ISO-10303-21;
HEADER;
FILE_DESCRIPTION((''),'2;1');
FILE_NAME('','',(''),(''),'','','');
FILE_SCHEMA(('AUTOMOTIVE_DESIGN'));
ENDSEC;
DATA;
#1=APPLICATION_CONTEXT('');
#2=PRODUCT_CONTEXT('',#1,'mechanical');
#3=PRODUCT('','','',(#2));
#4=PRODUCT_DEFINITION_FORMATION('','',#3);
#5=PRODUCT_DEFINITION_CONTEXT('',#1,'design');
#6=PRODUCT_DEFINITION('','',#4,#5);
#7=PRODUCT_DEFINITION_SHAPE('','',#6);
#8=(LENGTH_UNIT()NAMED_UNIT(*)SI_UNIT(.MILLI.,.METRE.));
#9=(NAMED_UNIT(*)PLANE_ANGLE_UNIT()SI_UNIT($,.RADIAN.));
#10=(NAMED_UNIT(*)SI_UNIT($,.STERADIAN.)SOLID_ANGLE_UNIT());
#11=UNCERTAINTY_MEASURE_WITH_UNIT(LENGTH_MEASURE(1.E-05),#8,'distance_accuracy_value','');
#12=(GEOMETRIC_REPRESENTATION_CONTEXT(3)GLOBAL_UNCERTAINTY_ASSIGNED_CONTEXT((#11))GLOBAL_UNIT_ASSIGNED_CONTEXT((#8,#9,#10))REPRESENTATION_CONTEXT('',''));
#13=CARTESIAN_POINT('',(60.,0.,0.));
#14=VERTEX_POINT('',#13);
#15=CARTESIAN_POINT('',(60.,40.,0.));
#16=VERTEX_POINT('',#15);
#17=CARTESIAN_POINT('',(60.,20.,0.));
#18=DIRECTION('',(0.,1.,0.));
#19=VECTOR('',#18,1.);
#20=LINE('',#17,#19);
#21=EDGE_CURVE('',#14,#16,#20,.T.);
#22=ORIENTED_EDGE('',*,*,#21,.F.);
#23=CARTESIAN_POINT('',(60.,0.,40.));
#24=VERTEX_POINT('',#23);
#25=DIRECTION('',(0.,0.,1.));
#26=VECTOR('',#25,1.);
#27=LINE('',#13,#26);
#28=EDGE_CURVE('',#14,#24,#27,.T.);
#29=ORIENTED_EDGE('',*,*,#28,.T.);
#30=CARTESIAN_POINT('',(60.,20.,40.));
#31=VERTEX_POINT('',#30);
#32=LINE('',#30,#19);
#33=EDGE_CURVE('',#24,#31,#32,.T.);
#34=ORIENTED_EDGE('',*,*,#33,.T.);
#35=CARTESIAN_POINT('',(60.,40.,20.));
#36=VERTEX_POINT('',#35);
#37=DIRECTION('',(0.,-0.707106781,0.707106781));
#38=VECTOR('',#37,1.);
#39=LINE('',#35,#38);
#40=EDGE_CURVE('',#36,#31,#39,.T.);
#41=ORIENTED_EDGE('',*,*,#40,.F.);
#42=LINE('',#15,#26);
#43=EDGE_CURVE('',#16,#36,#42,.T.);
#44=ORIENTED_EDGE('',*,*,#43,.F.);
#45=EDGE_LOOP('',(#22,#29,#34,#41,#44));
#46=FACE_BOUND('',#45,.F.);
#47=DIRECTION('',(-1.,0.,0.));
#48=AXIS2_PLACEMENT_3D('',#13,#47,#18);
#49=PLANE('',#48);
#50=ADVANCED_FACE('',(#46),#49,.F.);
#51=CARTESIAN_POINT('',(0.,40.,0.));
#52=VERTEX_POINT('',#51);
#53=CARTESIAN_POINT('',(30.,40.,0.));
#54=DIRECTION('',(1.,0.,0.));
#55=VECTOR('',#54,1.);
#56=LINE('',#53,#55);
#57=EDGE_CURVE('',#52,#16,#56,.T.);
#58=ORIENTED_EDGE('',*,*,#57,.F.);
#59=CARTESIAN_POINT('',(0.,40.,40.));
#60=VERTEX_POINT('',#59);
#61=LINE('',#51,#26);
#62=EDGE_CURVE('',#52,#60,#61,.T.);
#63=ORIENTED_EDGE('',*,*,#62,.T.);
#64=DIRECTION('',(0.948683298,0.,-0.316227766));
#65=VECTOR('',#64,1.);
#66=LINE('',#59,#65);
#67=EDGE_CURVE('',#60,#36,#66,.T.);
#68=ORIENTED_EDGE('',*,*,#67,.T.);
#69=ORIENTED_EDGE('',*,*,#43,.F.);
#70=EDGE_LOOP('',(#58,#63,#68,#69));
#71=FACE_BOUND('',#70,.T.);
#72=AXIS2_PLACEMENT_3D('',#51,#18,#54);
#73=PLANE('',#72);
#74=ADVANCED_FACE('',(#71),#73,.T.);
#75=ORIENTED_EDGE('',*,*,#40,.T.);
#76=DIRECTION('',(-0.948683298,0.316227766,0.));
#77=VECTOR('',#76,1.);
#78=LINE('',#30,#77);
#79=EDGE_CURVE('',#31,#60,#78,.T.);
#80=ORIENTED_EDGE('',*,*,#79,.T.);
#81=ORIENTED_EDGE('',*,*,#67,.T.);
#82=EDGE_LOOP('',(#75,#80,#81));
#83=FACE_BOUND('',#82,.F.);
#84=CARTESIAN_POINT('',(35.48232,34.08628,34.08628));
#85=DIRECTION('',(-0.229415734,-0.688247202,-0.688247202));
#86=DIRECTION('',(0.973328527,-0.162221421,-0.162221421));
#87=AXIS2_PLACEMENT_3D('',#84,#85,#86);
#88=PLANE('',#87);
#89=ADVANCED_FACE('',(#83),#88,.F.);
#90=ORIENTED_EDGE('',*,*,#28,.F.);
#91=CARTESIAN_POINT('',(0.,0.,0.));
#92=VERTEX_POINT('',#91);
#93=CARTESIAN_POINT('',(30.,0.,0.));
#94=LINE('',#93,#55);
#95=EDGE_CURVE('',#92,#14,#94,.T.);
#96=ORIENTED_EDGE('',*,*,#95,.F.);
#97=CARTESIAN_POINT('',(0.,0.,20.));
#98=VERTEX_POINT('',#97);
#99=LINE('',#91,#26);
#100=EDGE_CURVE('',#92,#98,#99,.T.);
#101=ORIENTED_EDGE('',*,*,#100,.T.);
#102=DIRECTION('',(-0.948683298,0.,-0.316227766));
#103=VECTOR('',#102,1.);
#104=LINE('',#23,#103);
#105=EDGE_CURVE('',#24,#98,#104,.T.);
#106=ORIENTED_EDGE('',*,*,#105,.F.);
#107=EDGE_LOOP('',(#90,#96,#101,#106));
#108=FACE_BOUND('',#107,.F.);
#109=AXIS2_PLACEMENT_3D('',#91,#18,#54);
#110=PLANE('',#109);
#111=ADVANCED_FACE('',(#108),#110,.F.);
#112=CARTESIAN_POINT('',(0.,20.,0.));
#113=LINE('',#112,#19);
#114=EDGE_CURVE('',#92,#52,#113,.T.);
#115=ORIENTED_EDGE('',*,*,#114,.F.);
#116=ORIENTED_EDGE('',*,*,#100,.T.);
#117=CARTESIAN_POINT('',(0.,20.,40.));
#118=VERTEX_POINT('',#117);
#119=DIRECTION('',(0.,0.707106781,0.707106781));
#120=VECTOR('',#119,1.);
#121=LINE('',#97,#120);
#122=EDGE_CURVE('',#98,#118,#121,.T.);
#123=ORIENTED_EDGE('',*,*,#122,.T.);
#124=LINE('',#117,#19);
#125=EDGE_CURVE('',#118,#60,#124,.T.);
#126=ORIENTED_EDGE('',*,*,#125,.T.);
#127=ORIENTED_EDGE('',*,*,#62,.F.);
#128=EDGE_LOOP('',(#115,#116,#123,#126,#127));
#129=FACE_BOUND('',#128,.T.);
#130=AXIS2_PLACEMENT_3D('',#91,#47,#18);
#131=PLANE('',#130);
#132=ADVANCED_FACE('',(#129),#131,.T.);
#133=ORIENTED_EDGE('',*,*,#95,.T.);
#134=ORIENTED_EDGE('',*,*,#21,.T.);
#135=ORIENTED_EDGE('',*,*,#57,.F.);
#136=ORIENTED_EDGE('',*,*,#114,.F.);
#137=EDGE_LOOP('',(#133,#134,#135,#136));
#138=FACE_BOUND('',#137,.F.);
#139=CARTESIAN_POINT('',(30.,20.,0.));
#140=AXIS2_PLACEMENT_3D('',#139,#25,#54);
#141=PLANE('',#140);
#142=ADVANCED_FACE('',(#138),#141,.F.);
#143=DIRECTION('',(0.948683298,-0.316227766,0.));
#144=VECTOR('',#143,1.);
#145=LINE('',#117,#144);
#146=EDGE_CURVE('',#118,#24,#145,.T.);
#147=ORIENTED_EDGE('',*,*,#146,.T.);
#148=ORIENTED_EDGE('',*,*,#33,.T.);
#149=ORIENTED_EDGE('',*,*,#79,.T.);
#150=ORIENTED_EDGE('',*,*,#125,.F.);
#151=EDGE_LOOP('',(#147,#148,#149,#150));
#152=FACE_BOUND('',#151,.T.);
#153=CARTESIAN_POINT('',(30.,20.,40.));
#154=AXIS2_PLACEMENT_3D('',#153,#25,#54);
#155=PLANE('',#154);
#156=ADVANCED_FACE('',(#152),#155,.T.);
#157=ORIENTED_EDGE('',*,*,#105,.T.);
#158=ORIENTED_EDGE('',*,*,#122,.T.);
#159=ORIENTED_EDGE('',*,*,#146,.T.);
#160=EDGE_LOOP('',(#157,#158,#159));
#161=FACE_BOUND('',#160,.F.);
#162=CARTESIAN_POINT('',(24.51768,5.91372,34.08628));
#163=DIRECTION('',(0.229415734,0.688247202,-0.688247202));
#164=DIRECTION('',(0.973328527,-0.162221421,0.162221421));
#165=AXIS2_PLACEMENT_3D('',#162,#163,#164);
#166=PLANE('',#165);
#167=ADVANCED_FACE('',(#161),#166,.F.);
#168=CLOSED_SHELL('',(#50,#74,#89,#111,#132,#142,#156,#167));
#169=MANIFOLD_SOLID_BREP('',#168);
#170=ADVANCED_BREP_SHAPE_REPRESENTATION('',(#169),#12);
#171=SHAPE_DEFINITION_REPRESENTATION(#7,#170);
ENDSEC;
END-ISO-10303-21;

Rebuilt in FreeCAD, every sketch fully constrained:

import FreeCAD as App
import Part
import Sketcher


def add_polygon(sketch, points):
    """Adds a closed chain of lines whose ends are joined by coincident constraints."""
    first, n = sketch.GeometryCount, len(points)
    for a, b in zip(points, points[1:] + points[:1]):
        sketch.addGeometry(Part.LineSegment(App.Vector(*a, 0), App.Vector(*b, 0)), False)
    for i in range(n):
        sketch.addConstraint(Sketcher.Constraint("Coincident", first + i, 2, first + (i + 1) % n, 1))

doc = App.newDocument("Part")
params = doc.addObject("Spreadsheet::Sheet", "Params")
for row, (alias, value) in enumerate([
    ("sketch1_width", "60 mm"),
    ("sketch1_height", "40 mm"),
    ("pad1_length", "40 mm"),
    ("pocket1_length", "25 mm"),
    ("pocket2_length", "25 mm"),
], start=1):
    params.set(f"A{row}", alias)
    params.set(f"B{row}", "=" + value)
    params.setAlias(f"B{row}", alias)

body = doc.addObject("PartDesign::Body", "Body")

# Sketch on XY plane
sketch1 = body.newObject("Sketcher::SketchObject", "Sketch")
sketch1.AttachmentSupport = (doc.getObject("XY_Plane"), [""])
sketch1.MapMode = "FlatFace"
add_polygon(sketch1, [(0, 40), (0, 0), (60, 0), (60, 40)])  # lines 0-3
sketch1.addConstraint([
    Sketcher.Constraint("Vertical", 0),
    Sketcher.Constraint("Horizontal", 1),
    Sketcher.Constraint("Vertical", 2),
    Sketcher.Constraint("Horizontal", 3),
    Sketcher.Constraint("Coincident", 0, 2, -1, 1),
    Sketcher.Constraint("DistanceX", 1, 1, 1, 2, 60.0),
    Sketcher.Constraint("DistanceY", 0, 2, 0, 1, 40.0),
])
sketch1.setExpression("Constraints[9]", "Params.sketch1_width")
sketch1.setExpression("Constraints[10]", "Params.sketch1_height")
pad1 = body.newObject("PartDesign::Pad", "Pad")
pad1.Profile = sketch1
pad1.setExpression("Length", "Params.pad1_length")

# Sketch on an angled plane
sketch2 = body.newObject("Sketcher::SketchObject", "Sketch001")
sketch2.Placement = App.Placement(App.Vector(-3.157895, -9.473684, 9.473684), App.Rotation(App.Vector(0.973328527, -0.162221421, 0.162221421), App.Vector(0, -0.707106782, -0.707106782), App.Vector(0.229415734, 0.688247202, -0.688247202), "ZXY"))
add_polygon(sketch2, [(3, -14), (3, -42), (65, -28)])  # lines 0-2
sketch2.addConstraint([
    Sketcher.Constraint("Vertical", 0),
    Sketcher.Constraint("Equal", 1, 2),
    Sketcher.Constraint("DistanceY", 0, 2, 0, 1, 28.284271),
    Sketcher.Constraint("DistanceX", -1, 1, 0, 2, 3.244428),
    Sketcher.Constraint("DistanceX", -1, 1, 1, 2, 64.888568),
    Sketcher.Constraint("DistanceY", 1, 2, -1, 1, 28.284271),
])
pocket1 = body.newObject("PartDesign::Pocket", "Pocket")
pocket1.Profile = sketch2
pocket1.setExpression("Length", "Params.pocket1_length")

# Sketch on an angled plane
sketch3 = body.newObject("Sketcher::SketchObject", "Sketch002")
sketch3.Placement = App.Placement(App.Vector(12.631579, 37.894737, 37.894737), App.Rotation(App.Vector(0.973328527, -0.162221421, -0.162221421), App.Vector(0, -0.707106782, 0.707106782), App.Vector(-0.229415734, -0.688247202, -0.688247202), "ZXY"))
add_polygon(sketch3, [(49, 14), (-13, 0), (49, -14)])  # lines 0-2
sketch3.addConstraint([
    Sketcher.Constraint("Vertical", 2),
    Sketcher.Constraint("PointOnObject", 0, 2, -1),
    Sketcher.Constraint("Equal", 0, 1),
    Sketcher.Constraint("DistanceY", 2, 1, 2, 2, 28.284271),
    Sketcher.Constraint("DistanceX", 0, 2, 1, 2, 61.64414),
    Sketcher.Constraint("DistanceX", 0, 2, -1, 1, 12.977714),
])
pocket2 = body.newObject("PartDesign::Pocket", "Pocket001")
pocket2.Profile = sketch3
pocket2.setExpression("Length", "Params.pocket2_length")

doc.recompute()
